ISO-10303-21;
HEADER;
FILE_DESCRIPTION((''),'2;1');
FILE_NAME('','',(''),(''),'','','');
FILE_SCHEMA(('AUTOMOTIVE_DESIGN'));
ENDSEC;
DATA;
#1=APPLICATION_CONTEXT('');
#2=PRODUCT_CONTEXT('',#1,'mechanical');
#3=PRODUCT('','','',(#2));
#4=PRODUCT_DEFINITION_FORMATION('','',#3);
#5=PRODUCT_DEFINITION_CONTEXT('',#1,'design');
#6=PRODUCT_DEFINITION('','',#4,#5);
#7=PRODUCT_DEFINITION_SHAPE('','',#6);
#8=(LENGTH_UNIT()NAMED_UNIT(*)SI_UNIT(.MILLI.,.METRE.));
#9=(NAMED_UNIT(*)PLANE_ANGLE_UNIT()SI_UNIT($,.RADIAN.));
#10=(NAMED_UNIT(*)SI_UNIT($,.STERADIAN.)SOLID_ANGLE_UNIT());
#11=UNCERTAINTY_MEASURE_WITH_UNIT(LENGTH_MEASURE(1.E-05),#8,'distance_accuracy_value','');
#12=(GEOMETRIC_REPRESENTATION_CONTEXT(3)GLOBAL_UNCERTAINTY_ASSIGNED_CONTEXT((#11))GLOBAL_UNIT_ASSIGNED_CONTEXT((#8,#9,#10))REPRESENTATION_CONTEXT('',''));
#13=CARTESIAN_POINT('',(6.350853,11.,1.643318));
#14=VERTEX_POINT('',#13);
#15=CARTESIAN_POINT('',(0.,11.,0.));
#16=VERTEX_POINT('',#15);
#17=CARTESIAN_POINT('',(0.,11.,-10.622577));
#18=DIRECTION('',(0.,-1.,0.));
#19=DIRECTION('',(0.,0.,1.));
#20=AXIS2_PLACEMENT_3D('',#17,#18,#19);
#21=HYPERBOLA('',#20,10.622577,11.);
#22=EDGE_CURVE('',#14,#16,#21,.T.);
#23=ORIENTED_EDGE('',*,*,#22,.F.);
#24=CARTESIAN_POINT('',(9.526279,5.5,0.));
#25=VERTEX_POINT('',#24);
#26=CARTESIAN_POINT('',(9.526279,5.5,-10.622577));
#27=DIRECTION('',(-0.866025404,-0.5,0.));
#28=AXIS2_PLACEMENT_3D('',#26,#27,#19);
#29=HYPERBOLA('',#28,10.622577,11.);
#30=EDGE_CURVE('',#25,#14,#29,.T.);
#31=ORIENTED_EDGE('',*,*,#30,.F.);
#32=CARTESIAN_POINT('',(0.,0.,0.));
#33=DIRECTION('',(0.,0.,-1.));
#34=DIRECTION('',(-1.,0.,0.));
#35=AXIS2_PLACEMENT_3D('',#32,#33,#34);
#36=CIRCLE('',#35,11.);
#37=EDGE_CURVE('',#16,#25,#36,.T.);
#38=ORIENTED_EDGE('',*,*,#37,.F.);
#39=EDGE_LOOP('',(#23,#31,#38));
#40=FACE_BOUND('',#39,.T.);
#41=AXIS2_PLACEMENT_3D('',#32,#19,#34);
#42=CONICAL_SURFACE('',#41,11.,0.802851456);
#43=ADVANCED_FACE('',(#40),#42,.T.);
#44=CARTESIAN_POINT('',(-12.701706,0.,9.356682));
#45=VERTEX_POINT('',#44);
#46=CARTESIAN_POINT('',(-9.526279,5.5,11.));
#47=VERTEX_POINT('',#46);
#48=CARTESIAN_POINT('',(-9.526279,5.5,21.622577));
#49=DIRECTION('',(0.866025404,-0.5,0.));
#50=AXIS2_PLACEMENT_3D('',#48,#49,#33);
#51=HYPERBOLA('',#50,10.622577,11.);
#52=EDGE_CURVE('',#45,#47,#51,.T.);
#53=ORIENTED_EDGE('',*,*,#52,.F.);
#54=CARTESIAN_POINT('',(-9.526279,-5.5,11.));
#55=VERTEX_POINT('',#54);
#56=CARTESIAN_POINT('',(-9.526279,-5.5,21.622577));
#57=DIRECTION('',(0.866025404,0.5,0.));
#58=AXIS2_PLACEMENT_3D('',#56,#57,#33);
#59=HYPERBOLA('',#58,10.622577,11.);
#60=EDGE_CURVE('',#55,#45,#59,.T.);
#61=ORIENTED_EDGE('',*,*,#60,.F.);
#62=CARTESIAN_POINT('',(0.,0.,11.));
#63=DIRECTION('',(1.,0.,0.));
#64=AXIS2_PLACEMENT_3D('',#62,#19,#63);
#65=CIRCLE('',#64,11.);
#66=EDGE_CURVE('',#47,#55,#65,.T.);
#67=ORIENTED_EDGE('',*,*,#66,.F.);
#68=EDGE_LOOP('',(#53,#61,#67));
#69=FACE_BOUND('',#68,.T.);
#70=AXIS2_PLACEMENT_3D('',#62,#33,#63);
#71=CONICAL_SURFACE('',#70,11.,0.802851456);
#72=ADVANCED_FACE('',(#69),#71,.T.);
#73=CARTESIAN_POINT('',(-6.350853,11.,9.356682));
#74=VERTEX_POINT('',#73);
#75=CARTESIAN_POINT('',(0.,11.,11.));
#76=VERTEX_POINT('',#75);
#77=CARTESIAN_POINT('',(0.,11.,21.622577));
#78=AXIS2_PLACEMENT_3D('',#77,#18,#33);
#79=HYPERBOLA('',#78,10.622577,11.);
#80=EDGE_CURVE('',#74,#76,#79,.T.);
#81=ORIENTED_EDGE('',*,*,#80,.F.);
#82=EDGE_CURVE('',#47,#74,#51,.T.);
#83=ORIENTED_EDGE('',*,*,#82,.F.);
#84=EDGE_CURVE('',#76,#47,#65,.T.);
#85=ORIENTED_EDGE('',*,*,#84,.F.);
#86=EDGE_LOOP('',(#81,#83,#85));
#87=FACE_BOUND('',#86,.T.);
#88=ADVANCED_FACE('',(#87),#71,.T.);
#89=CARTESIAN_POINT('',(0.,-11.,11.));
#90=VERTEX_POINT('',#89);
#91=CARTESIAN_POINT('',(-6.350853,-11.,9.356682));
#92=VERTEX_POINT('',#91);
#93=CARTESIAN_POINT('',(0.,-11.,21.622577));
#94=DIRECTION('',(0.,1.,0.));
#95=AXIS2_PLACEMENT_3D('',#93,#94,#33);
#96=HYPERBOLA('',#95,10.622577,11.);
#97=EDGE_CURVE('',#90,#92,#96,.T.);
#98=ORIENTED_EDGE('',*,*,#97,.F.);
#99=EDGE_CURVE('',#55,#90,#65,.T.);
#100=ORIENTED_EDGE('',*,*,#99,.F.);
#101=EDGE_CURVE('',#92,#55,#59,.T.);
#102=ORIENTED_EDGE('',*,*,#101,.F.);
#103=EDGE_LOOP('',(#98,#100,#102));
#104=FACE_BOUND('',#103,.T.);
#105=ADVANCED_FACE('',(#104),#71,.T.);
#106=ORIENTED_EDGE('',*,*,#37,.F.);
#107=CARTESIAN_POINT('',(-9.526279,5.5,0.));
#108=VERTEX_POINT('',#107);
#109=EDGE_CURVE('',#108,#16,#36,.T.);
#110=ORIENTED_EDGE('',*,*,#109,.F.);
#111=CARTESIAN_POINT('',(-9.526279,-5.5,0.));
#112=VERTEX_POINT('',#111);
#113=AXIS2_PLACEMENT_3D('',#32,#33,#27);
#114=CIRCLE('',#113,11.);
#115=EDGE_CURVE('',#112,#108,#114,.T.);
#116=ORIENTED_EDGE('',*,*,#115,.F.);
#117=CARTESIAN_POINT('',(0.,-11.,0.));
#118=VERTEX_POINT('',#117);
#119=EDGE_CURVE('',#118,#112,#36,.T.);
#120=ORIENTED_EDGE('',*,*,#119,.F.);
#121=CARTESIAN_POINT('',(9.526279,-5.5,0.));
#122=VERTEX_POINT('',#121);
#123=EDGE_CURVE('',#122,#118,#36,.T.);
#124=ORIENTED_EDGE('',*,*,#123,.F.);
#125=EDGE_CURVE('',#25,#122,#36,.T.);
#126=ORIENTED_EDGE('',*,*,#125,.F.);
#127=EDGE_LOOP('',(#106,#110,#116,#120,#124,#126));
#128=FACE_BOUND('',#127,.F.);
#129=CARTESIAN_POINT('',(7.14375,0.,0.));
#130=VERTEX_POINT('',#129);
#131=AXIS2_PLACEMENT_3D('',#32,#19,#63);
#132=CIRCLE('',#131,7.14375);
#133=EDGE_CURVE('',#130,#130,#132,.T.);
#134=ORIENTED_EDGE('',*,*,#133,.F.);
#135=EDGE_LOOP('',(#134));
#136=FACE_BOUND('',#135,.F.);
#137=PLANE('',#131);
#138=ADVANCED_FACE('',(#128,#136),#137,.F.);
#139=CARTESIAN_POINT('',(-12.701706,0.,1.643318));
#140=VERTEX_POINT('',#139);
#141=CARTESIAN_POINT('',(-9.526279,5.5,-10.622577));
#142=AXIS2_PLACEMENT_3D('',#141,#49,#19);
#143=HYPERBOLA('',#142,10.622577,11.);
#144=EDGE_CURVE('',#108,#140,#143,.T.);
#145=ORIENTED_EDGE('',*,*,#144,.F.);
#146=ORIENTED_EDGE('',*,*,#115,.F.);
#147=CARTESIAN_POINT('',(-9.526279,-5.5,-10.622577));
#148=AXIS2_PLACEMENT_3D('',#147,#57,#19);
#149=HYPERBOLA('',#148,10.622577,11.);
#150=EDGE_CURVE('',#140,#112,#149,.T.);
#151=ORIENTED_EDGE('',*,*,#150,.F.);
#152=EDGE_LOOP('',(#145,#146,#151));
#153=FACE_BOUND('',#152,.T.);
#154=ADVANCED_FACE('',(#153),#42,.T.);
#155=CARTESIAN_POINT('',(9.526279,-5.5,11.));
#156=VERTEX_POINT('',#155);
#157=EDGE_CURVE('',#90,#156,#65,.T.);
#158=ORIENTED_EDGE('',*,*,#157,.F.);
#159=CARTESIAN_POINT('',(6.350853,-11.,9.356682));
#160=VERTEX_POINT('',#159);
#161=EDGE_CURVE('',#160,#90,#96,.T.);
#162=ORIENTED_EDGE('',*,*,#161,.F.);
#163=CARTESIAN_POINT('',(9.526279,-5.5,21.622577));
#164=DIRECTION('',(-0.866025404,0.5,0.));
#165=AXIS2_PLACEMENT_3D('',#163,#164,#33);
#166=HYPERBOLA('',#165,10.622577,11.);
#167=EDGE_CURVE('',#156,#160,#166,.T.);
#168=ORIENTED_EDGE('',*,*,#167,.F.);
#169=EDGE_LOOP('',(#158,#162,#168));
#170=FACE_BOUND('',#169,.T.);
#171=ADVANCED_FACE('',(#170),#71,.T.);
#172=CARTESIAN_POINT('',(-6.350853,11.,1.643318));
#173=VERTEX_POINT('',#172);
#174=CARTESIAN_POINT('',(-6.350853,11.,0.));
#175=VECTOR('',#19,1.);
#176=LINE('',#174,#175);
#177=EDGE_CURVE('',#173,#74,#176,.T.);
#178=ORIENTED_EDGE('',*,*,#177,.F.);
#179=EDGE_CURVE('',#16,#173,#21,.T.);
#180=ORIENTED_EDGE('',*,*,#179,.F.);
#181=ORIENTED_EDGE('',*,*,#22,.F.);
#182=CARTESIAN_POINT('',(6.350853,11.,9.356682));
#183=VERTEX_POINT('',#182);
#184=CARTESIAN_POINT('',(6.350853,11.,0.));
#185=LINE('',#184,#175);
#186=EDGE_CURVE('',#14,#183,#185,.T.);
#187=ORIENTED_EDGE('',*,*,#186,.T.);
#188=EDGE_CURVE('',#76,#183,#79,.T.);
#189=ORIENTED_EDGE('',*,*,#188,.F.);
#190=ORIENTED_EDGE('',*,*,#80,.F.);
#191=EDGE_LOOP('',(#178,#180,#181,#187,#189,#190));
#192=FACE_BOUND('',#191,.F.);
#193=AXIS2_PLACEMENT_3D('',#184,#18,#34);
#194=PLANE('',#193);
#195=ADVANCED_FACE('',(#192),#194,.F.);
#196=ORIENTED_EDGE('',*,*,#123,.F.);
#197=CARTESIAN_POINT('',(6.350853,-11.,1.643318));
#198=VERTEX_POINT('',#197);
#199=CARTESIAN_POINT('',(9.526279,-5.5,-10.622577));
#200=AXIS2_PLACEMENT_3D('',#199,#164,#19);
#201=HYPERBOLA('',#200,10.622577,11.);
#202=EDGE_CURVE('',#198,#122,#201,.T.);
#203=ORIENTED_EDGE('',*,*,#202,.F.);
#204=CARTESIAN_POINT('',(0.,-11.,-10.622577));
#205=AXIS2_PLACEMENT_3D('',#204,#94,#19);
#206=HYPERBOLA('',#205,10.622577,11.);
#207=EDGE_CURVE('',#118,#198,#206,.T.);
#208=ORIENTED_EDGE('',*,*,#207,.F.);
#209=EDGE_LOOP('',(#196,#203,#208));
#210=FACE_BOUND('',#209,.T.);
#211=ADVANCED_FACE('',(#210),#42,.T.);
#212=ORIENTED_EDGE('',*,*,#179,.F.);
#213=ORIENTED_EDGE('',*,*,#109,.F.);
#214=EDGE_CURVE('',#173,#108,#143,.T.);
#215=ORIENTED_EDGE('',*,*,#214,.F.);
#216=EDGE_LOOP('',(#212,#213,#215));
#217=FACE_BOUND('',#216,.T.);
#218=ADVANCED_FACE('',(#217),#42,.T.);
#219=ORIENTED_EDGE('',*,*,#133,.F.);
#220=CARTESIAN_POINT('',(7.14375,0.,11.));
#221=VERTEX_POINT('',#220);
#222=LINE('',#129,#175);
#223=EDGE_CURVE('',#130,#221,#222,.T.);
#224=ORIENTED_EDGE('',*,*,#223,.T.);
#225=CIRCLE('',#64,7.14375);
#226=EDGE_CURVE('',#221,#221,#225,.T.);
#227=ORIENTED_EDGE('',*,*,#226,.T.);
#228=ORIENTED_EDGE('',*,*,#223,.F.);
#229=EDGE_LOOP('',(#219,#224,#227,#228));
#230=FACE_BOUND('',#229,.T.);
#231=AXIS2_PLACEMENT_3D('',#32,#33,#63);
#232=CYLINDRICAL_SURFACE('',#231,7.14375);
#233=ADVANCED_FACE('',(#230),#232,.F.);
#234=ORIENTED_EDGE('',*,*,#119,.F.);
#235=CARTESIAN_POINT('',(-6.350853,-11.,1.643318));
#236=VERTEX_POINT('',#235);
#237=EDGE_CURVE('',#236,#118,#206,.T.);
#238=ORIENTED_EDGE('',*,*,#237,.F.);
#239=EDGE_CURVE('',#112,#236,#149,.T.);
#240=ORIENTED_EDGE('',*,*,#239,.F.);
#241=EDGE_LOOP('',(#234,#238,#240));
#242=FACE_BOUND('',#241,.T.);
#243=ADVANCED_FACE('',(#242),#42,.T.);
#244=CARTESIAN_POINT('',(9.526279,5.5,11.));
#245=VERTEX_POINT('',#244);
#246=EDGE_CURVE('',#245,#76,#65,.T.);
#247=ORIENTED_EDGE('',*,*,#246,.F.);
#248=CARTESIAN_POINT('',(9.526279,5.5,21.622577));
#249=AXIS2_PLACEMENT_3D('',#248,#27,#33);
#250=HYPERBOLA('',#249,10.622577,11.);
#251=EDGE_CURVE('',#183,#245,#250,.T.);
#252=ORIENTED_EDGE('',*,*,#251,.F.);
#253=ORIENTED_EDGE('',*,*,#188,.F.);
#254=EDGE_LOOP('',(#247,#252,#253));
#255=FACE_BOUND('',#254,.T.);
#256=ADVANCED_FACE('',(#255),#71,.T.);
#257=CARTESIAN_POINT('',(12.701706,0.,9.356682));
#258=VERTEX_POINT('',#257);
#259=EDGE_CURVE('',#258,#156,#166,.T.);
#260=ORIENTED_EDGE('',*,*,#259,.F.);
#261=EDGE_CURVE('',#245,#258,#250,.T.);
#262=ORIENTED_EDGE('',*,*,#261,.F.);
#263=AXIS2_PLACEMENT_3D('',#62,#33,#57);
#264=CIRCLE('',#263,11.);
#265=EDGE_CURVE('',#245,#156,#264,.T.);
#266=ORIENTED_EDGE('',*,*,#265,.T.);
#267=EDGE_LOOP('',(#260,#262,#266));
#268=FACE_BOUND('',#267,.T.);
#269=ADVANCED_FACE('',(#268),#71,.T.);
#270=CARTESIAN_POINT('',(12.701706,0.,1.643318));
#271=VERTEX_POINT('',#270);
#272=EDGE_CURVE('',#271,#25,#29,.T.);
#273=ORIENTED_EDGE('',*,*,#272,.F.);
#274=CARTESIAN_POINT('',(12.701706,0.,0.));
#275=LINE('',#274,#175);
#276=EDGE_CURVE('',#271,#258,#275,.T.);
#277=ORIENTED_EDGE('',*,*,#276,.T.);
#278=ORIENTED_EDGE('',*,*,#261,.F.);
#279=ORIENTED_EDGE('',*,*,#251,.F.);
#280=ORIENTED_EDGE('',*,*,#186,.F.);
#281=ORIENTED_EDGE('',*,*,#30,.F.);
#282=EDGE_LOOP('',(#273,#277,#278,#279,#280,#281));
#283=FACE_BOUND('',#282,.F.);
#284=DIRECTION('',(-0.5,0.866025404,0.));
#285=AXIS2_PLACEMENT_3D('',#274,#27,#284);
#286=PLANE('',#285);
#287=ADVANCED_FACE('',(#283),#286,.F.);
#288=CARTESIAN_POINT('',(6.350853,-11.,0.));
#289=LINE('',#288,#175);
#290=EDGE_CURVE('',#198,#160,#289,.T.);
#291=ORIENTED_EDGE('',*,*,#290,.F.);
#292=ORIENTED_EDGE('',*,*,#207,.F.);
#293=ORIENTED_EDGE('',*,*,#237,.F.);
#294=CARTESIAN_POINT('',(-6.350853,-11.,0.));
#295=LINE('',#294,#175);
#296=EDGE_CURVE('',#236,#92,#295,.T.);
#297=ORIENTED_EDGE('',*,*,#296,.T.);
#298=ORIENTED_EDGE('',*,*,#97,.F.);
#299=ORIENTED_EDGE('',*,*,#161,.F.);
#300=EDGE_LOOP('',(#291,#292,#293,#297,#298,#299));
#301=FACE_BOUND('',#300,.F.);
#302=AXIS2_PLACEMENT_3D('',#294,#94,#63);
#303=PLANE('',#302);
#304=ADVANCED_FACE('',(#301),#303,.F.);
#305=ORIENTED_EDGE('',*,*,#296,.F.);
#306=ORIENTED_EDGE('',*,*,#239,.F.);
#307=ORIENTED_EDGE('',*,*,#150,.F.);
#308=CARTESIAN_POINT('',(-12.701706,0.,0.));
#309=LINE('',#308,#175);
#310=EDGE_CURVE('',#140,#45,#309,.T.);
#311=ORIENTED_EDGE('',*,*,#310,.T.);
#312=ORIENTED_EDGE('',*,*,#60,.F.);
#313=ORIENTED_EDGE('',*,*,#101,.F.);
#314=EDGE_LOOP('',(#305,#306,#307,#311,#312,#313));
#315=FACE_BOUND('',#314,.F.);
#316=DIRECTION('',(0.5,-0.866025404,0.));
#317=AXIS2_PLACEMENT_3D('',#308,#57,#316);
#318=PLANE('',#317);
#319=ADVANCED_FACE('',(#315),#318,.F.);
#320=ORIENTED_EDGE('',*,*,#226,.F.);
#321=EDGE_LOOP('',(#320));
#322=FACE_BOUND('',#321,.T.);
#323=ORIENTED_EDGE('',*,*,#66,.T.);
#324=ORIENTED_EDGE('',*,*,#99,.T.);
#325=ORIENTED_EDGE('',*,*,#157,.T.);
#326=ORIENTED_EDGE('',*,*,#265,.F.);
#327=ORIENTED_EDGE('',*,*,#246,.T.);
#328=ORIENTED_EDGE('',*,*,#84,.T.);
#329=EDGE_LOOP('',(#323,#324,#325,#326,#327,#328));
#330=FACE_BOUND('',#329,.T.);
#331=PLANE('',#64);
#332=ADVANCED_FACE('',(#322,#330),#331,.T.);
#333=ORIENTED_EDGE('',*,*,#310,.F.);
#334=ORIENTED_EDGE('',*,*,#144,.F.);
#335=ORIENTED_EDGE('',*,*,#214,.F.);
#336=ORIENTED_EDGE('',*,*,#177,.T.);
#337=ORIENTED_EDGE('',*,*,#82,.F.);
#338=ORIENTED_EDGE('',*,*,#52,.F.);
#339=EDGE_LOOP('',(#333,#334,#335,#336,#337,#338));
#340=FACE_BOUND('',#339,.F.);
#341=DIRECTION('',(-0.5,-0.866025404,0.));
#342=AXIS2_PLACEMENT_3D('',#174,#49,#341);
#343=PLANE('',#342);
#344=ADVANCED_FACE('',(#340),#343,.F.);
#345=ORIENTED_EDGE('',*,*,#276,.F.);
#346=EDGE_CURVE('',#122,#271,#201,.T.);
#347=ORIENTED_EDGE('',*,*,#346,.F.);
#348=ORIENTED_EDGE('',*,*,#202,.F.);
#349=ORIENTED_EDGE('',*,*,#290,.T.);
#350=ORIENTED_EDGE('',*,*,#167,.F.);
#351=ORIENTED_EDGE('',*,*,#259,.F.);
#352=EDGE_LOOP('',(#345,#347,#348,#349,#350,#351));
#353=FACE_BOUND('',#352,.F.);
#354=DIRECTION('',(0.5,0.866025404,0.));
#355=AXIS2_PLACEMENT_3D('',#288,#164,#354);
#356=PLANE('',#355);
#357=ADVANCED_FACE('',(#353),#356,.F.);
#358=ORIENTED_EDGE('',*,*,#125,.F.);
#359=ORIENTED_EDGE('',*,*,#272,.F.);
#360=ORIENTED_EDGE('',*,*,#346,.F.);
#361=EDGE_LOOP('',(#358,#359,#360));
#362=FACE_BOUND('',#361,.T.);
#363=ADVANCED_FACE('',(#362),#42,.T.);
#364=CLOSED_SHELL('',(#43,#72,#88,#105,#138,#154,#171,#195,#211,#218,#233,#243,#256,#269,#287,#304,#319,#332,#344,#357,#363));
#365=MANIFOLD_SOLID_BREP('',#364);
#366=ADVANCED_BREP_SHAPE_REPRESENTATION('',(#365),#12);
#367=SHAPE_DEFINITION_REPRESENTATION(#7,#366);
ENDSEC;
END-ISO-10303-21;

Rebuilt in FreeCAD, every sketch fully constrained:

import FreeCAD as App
import Part
import Sketcher
Q = App.Units.Quantity


def faces_at(feature, points):
    """Names of the faces that lie closest to the given points."""
    faces = feature.Shape.Faces
    near = lambda p: min(range(len(faces)), key=lambda i: faces[i].distToShape(Part.Vertex(*p))[0])
    return sorted({f"Face{near(p) + 1}" for p in points})


def add_polygon(sketch, points):
    """Adds a closed chain of lines whose ends are joined by coincident constraints."""
    first, n = sketch.GeometryCount, len(points)
    for a, b in zip(points, points[1:] + points[:1]):
        sketch.addGeometry(Part.LineSegment(App.Vector(*a, 0), App.Vector(*b, 0)), False)
    for i in range(n):
        sketch.addConstraint(Sketcher.Constraint("Coincident", first + i, 2, first + (i + 1) % n, 1))

doc = App.newDocument("Part")
params = doc.addObject("Spreadsheet::Sheet", "Params")
for row, (alias, value) in enumerate([
    ("pad1_length", "11 mm"),
    ("sketch2_diameter", "22 mm"),
    ("pad2_length", "10 mm"),
    ("draft_angle", "46 deg"),
    ("sketch3_diameter", "22 mm"),
    ("pad3_length", "10 mm"),
    ("draft2_angle", "46 deg"),
], start=1):
    params.set(f"A{row}", alias)
    params.set(f"B{row}", "=" + value)
    params.setAlias(f"B{row}", alias)

body = doc.addObject("PartDesign::Body", "Body")

# Sketch on XY plane
sketch1 = body.newObject("Sketcher::SketchObject", "Sketch")
sketch1.AttachmentSupport = (doc.getObject("XY_Plane"), [""])
sketch1.MapMode = "FlatFace"
add_polygon(sketch1, [(13, 0), (6, 11), (-6, 11), (-13, 0), (-6, -11), (6, -11)])  # lines 0-5
sketch1.addGeometry(Part.Circle(App.Vector(0, 0, 0), App.Vector(0, 0, 1), 7), False)  # 6
sketch1.addConstraint([
    Sketcher.Constraint("Horizontal", 1),
    Sketcher.Constraint("Horizontal", 4),
    Sketcher.Constraint("Coincident", 6, 3, -1, 1),
    Sketcher.Constraint("Symmetric", 0, 2, 3, 2, -1, 1),
    Sketcher.Constraint("Symmetric", 2, 2, 5, 2, -1, 1),
    Sketcher.Constraint("PointOnObject", 2, 2, -1),
    Sketcher.Constraint("Parallel", 2, 5),
    Sketcher.Constraint("Vertical", 1, 2, 3, 2),
    Sketcher.Constraint("Angle", 0, Q("120 deg")),
    Sketcher.Constraint("DistanceY", -1, 1, 0, 2, Q("11 mm")),
    Sketcher.Constraint("Diameter", 6, Q("14.2875 mm")),
    Sketcher.Constraint("DistanceX", 1, 2, 1, 1, Q("12.701706 mm")),
])
pad1 = body.newObject("PartDesign::Pad", "Pad")
pad1.Profile = sketch1
pad1.setExpression("Length", "Params.pad1_length")
body2 = doc.addObject("PartDesign::Body", "Body001")

# Sketch on XY plane
sketch2 = body2.newObject("Sketcher::SketchObject", "Sketch001")
sketch2.AttachmentSupport = (doc.getObject("XY_Plane001"), [""])
sketch2.MapMode = "FlatFace"
sketch2.AttachmentOffset = App.Placement(App.Vector(0, 0, 11), App.Rotation())
sketch2.addGeometry([
    Part.Circle(App.Vector(0, 0, 0), App.Vector(0, 0, 1), 31),
    Part.Circle(App.Vector(0, 0, 0), App.Vector(0, 0, 1), 11),
], False)
sketch2.addConstraint([
    Sketcher.Constraint("Coincident", 0, 3, -1, 1),
    Sketcher.Constraint("Coincident", 1, 3, -1, 1),
    Sketcher.Constraint("Diameter", 1, Q("22 mm")),
    Sketcher.Constraint("Diameter", 0, Q("62.446126 mm")),
])
sketch2.setExpression("Constraints[2]", "Params.sketch2_diameter")
pad2 = body2.newObject("PartDesign::Pad", "Pad001")
pad2.Profile = sketch2
pad2.setExpression("Length", "Params.pad2_length")
pad2.Reversed = True
doc.recompute()

datumplane = body2.newObject("PartDesign::Plane", "DatumPlane")
datumplane.AttachmentSupport = (doc.getObject("XY_Plane001"), [""])
datumplane.MapMode = "FlatFace"
datumplane.AttachmentOffset = App.Placement(App.Vector(0, 0, 11), App.Rotation())
draft = body2.newObject("PartDesign::Draft", "Draft")
draft.Base = (pad2, faces_at(pad2, [(-31.223, 0, 6), (-11, 0, 6)]))
draft.NeutralPlane = (datumplane, [""])
draft.setExpression("Angle", "Params.draft_angle")
draft.Reversed = True
doc.recompute()

boolean = body.newObject("PartDesign::Boolean", "Boolean")
boolean.Type = "Cut"
boolean.addObjects([body2])
body3 = doc.addObject("PartDesign::Body", "Body002")

# Sketch on XY plane
sketch3 = body3.newObject("Sketcher::SketchObject", "Sketch002")
sketch3.AttachmentSupport = (doc.getObject("XY_Plane002"), [""])
sketch3.MapMode = "FlatFace"
sketch3.addGeometry([
    Part.Circle(App.Vector(0, 0, 0), App.Vector(0, 0, 1), 41),
    Part.Circle(App.Vector(0, 0, 0), App.Vector(0, 0, 1), 11),
], False)
sketch3.addConstraint([
    Sketcher.Constraint("Coincident", 0, 3, -1, 1),
    Sketcher.Constraint("Coincident", 1, 3, -1, 1),
    Sketcher.Constraint("Diameter", 1, Q("22 mm")),
    Sketcher.Constraint("Diameter", 0, Q("81.725352 mm")),
])
sketch3.setExpression("Constraints[2]", "Params.sketch3_diameter")
pad3 = body3.newObject("PartDesign::Pad", "Pad002")
pad3.Profile = sketch3
pad3.setExpression("Length", "Params.pad3_length")
doc.recompute()

draft2 = body3.newObject("PartDesign::Draft", "Draft001")
draft2.Base = (pad3, faces_at(pad3, [(40.863, 0, 5), (11, 0, 5)]))
draft2.NeutralPlane = (doc.getObject("XY_Plane002"), [""])
draft2.setExpression("Angle", "Params.draft2_angle")
draft2.Reversed = False
doc.recompute()

boolean2 = body.newObject("PartDesign::Boolean", "Boolean001")
boolean2.Type = "Cut"
boolean2.addObjects([body3])

doc.recompute()
